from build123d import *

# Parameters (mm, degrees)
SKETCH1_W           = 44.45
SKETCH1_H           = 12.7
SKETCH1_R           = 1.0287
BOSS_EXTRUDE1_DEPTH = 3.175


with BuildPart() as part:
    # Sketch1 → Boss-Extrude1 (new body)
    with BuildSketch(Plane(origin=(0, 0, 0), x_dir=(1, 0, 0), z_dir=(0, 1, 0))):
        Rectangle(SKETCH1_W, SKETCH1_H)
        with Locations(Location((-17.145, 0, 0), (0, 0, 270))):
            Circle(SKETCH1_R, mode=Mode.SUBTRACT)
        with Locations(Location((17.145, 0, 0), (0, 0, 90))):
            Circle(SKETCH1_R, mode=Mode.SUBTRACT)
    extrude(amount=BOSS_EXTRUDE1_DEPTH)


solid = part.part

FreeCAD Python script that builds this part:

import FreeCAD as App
import Part
import Sketcher
Q = App.Units.Quantity

doc = App.newDocument("Part")
body = doc.addObject("PartDesign::Body", "Body")

# Sketch on XZ plane
sketch1 = body.newObject("Sketcher::SketchObject", "Sketch")
sketch1.AttachmentSupport = (doc.getObject("XZ_Plane"), [""])
sketch1.MapMode = "FlatFace"
sketch1.addGeometry([
    Part.LineSegment(App.Vector(-22.2, -6.3, 0), App.Vector(-22.2, 6.3, 0)),  # 0
    Part.LineSegment(App.Vector(-22.2, 6.3, 0), App.Vector(22.2, 6.3, 0)),  # 1
    Part.LineSegment(App.Vector(22.2, 6.3, 0), App.Vector(22.2, -6.3, 0)),  # 2
    Part.LineSegment(App.Vector(22.2, -6.3, 0), App.Vector(-22.2, -6.3, 0)),  # 3
    Part.Circle(App.Vector(-17.1, 0, 0), App.Vector(0, 0, 1), 1),  # 4
    Part.Circle(App.Vector(17.1, 0, 0), App.Vector(0, 0, 1), 1),  # 5
], False)
sketch1.addConstraint([
    Sketcher.Constraint("Coincident", 0, 2, 1, 1),
    Sketcher.Constraint("Coincident", 1, 2, 2, 1),
    Sketcher.Constraint("Coincident", 2, 2, 3, 1),
    Sketcher.Constraint("Coincident", 3, 2, 0, 1),
    Sketcher.Constraint("Vertical", 0),
    Sketcher.Constraint("Horizontal", 1),
    Sketcher.Constraint("Vertical", 2),
    Sketcher.Constraint("Horizontal", 3),
    Sketcher.Constraint("Equal", 4, 5),
    Sketcher.Constraint("Symmetric", 4, 3, 5, 3, -1, 1),
    Sketcher.Constraint("Symmetric", 0, 2, 2, 2, -1, 1),
    Sketcher.Constraint("PointOnObject", 4, 3, -1),
    Sketcher.Constraint("Diameter", 4, Q("0.081 in")),
    Sketcher.Constraint("DistanceY", 0, 1, 0, 2, Q("0.5 in")),
    Sketcher.Constraint("DistanceX", 1, 1, 1, 2, Q("1.75 in")),
    Sketcher.Constraint("DistanceX", 0, 2, 4, 3, Q("0.2 in")),
])
pad1 = body.newObject("PartDesign::Pad", "Pad")
pad1.Profile = sketch1
pad1.Length = Q("0.125 in")
pad1.Reversed = True

doc.recompute()
